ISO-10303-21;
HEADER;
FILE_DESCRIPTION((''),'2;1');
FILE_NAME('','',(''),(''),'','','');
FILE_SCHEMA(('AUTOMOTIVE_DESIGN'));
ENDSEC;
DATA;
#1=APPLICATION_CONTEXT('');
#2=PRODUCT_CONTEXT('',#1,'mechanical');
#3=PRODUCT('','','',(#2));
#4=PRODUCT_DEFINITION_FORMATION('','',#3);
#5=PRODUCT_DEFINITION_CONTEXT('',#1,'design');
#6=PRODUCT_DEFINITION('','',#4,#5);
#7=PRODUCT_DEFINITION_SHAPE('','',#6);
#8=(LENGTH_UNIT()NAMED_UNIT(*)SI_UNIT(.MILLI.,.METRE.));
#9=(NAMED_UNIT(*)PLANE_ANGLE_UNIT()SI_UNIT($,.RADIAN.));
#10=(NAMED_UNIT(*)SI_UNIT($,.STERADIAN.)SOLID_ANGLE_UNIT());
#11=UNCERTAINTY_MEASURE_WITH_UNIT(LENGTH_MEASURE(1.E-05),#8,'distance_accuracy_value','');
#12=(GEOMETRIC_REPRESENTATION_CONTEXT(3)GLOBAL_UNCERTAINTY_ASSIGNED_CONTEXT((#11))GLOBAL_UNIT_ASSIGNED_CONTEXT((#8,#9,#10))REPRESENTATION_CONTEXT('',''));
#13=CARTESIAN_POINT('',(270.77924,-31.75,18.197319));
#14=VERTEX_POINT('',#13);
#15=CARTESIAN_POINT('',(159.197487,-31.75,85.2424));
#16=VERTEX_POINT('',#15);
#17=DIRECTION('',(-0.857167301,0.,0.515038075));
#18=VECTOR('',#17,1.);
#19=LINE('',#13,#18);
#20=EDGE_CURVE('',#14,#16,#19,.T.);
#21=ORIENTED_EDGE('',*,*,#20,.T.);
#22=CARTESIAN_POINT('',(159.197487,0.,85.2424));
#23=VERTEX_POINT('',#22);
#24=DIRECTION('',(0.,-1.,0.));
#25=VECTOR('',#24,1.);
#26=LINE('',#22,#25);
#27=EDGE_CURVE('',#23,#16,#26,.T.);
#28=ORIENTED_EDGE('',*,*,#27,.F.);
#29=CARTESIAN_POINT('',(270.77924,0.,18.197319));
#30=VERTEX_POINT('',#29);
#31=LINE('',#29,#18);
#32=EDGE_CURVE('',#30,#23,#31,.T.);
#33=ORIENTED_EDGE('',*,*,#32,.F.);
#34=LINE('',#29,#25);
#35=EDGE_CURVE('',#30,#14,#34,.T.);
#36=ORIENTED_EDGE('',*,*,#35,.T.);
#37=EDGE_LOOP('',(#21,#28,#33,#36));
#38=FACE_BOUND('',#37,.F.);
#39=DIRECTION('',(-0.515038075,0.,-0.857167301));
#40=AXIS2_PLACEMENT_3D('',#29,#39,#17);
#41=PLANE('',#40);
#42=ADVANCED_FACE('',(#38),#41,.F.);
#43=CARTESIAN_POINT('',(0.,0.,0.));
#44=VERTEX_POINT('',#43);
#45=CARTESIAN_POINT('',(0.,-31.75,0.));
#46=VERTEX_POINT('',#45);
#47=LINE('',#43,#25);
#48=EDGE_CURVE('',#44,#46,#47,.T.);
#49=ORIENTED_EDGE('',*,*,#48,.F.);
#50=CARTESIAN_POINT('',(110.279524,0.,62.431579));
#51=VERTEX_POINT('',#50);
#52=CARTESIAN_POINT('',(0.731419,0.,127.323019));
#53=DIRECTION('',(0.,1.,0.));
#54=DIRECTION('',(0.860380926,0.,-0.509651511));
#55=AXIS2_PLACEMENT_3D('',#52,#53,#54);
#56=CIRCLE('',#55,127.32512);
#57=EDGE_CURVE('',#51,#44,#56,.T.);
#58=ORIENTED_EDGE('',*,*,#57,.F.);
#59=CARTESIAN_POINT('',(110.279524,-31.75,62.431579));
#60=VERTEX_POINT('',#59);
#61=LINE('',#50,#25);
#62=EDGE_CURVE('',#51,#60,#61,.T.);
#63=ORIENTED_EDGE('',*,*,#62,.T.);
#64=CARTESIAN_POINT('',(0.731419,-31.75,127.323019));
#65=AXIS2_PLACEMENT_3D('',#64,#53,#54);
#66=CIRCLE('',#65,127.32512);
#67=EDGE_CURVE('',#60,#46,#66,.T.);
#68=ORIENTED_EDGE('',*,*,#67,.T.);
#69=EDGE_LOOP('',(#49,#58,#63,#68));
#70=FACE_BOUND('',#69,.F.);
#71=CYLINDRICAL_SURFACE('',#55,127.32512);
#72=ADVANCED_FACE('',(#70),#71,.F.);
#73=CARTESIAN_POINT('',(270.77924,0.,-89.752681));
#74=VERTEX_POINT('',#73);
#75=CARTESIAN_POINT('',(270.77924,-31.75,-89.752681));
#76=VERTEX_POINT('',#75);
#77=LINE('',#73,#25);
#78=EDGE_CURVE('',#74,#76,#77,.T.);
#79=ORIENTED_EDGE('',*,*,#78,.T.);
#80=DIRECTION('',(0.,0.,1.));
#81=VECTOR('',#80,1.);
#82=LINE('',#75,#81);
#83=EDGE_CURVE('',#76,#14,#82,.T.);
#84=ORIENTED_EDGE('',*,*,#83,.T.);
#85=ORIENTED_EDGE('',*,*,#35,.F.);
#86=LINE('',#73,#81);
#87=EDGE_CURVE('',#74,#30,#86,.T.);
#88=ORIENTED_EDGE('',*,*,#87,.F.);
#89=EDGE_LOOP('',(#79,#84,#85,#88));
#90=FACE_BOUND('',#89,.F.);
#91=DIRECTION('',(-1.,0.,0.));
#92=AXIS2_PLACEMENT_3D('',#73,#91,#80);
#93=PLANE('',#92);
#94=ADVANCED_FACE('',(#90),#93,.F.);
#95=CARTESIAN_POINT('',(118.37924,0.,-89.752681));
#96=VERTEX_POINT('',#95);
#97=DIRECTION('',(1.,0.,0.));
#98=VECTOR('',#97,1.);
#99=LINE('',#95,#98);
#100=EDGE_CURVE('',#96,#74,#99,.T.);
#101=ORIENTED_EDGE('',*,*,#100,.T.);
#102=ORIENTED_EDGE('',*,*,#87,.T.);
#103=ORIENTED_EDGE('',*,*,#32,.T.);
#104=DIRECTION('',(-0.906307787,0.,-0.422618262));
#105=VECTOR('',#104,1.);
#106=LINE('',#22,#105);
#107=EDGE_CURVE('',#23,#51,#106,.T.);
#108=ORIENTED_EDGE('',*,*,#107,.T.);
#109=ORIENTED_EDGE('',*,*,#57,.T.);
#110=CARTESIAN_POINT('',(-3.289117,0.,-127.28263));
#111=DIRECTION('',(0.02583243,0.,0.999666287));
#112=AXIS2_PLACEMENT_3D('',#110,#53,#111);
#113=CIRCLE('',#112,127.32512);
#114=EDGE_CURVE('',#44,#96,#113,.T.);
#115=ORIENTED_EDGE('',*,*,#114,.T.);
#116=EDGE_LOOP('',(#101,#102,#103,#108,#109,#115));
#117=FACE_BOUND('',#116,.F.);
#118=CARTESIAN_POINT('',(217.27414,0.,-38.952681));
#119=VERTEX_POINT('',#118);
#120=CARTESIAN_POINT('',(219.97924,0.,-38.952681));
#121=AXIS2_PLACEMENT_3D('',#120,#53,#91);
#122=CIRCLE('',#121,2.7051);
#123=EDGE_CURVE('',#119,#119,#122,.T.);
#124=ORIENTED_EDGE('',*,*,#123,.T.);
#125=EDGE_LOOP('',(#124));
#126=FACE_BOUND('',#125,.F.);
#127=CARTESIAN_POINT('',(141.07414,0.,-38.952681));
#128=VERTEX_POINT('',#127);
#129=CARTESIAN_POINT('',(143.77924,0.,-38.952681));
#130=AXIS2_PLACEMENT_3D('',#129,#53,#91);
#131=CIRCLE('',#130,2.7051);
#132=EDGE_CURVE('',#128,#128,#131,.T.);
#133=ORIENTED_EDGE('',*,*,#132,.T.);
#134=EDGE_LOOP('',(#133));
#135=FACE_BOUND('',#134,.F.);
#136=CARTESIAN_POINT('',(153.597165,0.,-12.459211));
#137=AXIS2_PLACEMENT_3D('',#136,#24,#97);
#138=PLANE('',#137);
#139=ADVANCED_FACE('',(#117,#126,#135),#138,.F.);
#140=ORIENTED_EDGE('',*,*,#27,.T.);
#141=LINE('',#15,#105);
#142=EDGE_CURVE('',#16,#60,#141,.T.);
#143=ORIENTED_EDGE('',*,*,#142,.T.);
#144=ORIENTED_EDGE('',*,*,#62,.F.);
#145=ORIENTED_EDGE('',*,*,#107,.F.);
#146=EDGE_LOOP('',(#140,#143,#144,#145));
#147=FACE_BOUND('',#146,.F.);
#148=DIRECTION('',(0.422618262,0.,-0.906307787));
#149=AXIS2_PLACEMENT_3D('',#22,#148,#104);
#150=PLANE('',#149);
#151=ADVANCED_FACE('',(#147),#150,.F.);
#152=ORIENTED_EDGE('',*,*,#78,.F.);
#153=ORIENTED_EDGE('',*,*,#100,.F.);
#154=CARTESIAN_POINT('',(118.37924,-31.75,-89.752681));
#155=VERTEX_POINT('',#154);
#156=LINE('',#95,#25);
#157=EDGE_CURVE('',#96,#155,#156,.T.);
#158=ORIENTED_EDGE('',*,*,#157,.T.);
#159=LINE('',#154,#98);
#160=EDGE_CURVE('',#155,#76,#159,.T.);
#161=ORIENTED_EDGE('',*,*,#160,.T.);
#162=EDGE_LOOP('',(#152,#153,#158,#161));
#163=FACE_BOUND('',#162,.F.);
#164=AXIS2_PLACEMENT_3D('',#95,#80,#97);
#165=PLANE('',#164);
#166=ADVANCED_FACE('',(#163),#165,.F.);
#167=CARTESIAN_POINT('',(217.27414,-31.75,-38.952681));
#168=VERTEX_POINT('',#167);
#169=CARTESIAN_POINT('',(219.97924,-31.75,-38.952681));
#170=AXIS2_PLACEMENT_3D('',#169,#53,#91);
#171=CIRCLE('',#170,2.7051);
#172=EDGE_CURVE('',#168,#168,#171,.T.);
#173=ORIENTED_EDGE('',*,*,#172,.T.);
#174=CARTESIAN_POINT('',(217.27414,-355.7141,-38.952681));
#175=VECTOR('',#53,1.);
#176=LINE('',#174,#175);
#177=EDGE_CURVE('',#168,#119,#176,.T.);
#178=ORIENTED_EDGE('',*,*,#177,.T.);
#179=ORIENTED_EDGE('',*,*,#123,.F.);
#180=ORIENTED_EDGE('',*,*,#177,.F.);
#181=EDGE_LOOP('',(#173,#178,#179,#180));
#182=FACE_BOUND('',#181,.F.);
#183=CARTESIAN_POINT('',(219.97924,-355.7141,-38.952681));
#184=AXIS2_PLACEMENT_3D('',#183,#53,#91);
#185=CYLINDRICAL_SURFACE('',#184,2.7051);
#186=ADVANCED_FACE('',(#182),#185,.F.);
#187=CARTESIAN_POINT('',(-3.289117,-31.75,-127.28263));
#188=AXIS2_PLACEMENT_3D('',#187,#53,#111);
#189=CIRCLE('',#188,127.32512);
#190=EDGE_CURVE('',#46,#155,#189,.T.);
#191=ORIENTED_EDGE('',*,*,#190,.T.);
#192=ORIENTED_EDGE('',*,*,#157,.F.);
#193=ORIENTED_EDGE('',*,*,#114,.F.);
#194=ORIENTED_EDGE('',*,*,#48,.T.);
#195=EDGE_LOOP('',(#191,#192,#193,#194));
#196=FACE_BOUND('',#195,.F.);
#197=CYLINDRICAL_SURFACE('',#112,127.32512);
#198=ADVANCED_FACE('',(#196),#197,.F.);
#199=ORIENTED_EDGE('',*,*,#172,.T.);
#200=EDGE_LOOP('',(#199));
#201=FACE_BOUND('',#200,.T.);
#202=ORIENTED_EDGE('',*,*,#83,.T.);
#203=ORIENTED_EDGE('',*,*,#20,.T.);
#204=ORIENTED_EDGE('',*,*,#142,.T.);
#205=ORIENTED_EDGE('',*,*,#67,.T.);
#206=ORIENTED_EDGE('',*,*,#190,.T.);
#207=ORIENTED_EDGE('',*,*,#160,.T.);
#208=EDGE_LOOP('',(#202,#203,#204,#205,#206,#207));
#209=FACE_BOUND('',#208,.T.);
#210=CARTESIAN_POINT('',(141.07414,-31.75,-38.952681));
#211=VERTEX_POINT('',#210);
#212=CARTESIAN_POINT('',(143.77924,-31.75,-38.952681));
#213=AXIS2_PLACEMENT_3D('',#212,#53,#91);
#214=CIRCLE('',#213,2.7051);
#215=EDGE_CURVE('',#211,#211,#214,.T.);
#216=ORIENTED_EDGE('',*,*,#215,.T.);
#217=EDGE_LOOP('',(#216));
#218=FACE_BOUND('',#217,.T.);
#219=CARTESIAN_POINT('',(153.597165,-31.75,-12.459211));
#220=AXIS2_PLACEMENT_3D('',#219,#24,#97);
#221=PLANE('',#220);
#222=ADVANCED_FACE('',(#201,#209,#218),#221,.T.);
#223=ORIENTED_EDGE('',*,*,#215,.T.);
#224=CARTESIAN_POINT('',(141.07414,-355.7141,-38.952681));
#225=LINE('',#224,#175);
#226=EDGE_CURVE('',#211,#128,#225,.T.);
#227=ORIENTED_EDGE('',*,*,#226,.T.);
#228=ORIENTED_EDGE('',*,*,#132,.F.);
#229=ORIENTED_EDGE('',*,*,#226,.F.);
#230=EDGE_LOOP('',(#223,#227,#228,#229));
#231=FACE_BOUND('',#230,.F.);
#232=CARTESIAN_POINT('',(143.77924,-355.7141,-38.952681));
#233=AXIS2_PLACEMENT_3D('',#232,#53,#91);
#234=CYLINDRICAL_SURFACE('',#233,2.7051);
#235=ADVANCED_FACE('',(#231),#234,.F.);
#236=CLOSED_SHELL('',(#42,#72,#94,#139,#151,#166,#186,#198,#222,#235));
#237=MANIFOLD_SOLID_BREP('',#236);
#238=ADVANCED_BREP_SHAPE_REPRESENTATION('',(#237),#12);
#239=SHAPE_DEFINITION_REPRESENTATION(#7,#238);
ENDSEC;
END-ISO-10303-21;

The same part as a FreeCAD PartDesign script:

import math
import FreeCAD as App
import Part
import Sketcher
from FreeCAD import Vector
Q = App.Units.Quantity

doc = App.newDocument("Part")
body = doc.addObject("PartDesign::Body", "Body")

# Sketch on XZ plane
sketch1 = body.newObject("Sketcher::SketchObject", "Sketch")
sketch1.AttachmentSupport = (doc.getObject("XZ_Plane"), [""])
sketch1.MapMode = "FlatFace"
sketch1.addGeometry([
    Part.LineSegment(Vector(159, 85, 0), Vector(110, 62, 0)),  # 0
    Part.ArcOfCircle(Part.Circle(Vector(1, 127, 0), Vector(0, 0, 1), 127), math.radians(-90), math.radians(-31)),  # 1
    Part.ArcOfCircle(Part.Circle(Vector(-3, -127, 0), Vector(0, 0, 1), 127), math.radians(17), math.radians(89)),  # 2
    Part.LineSegment(Vector(118, -90, 0), Vector(271, -90, 0)),  # 3
    Part.LineSegment(Vector(271, -90, 0), Vector(271, 18, 0)),  # 4
    Part.LineSegment(Vector(271, 18, 0), Vector(159, 85, 0)),  # 5
], False)
sketch1.addConstraint([
    Sketcher.Constraint("Coincident", 0, 2, 1, 2),
    Sketcher.Constraint("Coincident", 1, 1, 2, 2),
    Sketcher.Constraint("Coincident", 2, 1, 3, 1),
    Sketcher.Constraint("Coincident", 3, 2, 4, 1),
    Sketcher.Constraint("Coincident", 4, 2, 5, 1),
    Sketcher.Constraint("Coincident", 5, 2, 0, 1),
    Sketcher.Constraint("Horizontal", 3),
    Sketcher.Constraint("Vertical", 4),
    Sketcher.Constraint("Coincident", 1, 1, -1, 1),
    Sketcher.Constraint("Equal", 1, 2),
    Sketcher.Constraint("DistanceX", 3, 1, 3, 2, Q("6 in")),
    Sketcher.Constraint("Angle", 0, Q("-155 deg")),
    Sketcher.Constraint("Angle", 5, Q("149 deg")),
    Sketcher.Constraint("DistanceY", 4, 1, 4, 2, Q("4.25 in")),
    Sketcher.Constraint("Radius", 1, Q("5.0128 in")),
    Sketcher.Constraint("Distance", 0, Q("2.125 in")),
    Sketcher.Constraint("Distance", 5, Q("5.125 in")),
    Sketcher.Constraint("DistanceY", -1, 1, 5, 2, Q("3.356 in")),
    Sketcher.Constraint("DistanceX", -1, 1, 2, 1, Q("4.6606 in")),
])
pad1 = body.newObject("PartDesign::Pad", "Pad")
pad1.Profile = sketch1
pad1.Length = Q("1.25 in")

# Sketch on XZ plane
sketch2 = body.newObject("Sketcher::SketchObject", "Sketch001")
sketch2.AttachmentSupport = (doc.getObject("XZ_Plane"), [""])
sketch2.MapMode = "FlatFace"
sketch2.AttachmentOffset = App.Placement(Vector(0, 0, 1.25 * 25.4), App.Rotation())
sketch2.addGeometry([
    Part.Circle(Vector(143.8, -39, 0), Vector(0, 0, 1), 2.7),
    Part.Circle(Vector(220, -39, 0), Vector(0, 0, 1), 2.7),
], False)
sketch2.addConstraint([
    Sketcher.Constraint("Equal", 0, 1),
    Sketcher.Constraint("Horizontal", 0, 3, 1, 3),
    Sketcher.Constraint("Diameter", 0, Q("0.213 in")),
    Sketcher.Constraint("DistanceX", 0, 3, 1, 3, Q("3 in")),
    Sketcher.Constraint("DistanceX", -1, 1, 0, 3, Q("5.6606 in")),
    Sketcher.Constraint("DistanceY", 0, 3, -1, 1, Q("38.952681 mm")),
])
doc.recompute()
hole = body.newObject("PartDesign::Hole", "Hole")
hole.Profile = sketch2
hole.ThreadType = "None"
hole.Diameter = Q("0.213 in")
hole.DepthType = "ThroughAll"

doc.recompute()
